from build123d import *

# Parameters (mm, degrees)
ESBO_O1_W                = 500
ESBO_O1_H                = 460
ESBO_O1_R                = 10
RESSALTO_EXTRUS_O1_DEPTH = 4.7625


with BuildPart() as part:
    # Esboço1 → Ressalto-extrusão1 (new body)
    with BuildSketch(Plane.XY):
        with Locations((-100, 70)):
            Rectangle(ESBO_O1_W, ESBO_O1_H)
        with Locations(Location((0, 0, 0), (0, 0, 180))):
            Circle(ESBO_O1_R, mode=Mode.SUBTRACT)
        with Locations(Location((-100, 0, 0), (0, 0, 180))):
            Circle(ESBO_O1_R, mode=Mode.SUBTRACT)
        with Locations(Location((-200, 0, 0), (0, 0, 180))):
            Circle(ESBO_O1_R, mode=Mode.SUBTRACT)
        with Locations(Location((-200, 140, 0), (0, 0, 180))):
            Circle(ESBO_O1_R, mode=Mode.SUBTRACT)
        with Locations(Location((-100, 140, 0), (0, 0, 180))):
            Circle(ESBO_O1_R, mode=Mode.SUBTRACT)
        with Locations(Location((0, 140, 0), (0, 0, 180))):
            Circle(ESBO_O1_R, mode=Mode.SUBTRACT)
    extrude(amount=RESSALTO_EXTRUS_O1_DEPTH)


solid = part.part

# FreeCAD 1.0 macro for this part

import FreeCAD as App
import Part
import Sketcher

V = App.Vector
Q = App.Units.Quantity

doc = App.newDocument("Part")
body = doc.addObject("PartDesign::Body", "Body")

# Sketch on XY plane
sketch1 = doc.addObject("Sketcher::SketchObject", "Sketch")
body.addObject(sketch1)
sketch1.AttachmentSupport = (doc.XY_Plane, [""])
sketch1.MapMode = "FlatFace"
sketch1.addGeometry([
    Part.LineSegment(V(-350, 300, 0), V(-350, -160, 0)),  # 0
    Part.LineSegment(V(-350, -160, 0), V(150, -160, 0)),  # 1
    Part.LineSegment(V(150, -160, 0), V(150, 300, 0)),  # 2
    Part.LineSegment(V(150, 300, 0), V(-350, 300, 0)),  # 3
    Part.Circle(V(-200, 0, 0), V(0, 0, 1), 10),  # 4
    Part.Circle(V(-100, 0, 0), V(0, 0, 1), 10),  # 5
    Part.Circle(V(0, 0, 0), V(0, 0, 1), 10),  # 6
    Part.Circle(V(-200, 140, 0), V(0, 0, 1), 10),  # 7
    Part.Circle(V(-100, 140, 0), V(0, 0, 1), 10),  # 8
    Part.Circle(V(0, 140, 0), V(0, 0, 1), 10),  # 9
], False)
sketch1.addConstraint([
    Sketcher.Constraint("Coincident", 0, 2, 1, 1),
    Sketcher.Constraint("Coincident", 1, 2, 2, 1),
    Sketcher.Constraint("Coincident", 2, 2, 3, 1),
    Sketcher.Constraint("Coincident", 3, 2, 0, 1),
    Sketcher.Constraint("Vertical", 0),
    Sketcher.Constraint("Horizontal", 1),
    Sketcher.Constraint("Vertical", 2),
    Sketcher.Constraint("Horizontal", 3),
    Sketcher.Constraint("Coincident", 6, 3, -1, 1),
    Sketcher.Constraint("Equal", 4, 5),
    Sketcher.Constraint("Equal", 5, 6),
    Sketcher.Constraint("Equal", 6, 7),
    Sketcher.Constraint("Equal", 7, 8),
    Sketcher.Constraint("Equal", 8, 9),
    Sketcher.Constraint("PointOnObject", 4, 3, -1),
    Sketcher.Constraint("PointOnObject", 5, 3, -1),
    Sketcher.Constraint("PointOnObject", 9, 3, -2),
    Sketcher.Constraint("Horizontal", 7, 3, 8, 3),
    Sketcher.Constraint("Horizontal", 8, 3, 9, 3),
    Sketcher.Constraint("Vertical", 4, 3, 7, 3),
    Sketcher.Constraint("Vertical", 5, 3, 8, 3),
    Sketcher.Constraint("Diameter", 4, Q("20 mm")),
    Sketcher.Constraint("DistanceX", 1, 1, 1, 2, Q("500 mm")),
    Sketcher.Constraint("DistanceY", 0, 2, 0, 1, Q("460 mm")),
    Sketcher.Constraint("DistanceX", 4, 3, -1, 1, Q("200 mm")),
    Sketcher.Constraint("DistanceX", 5, 3, -1, 1, Q("100 mm")),
    Sketcher.Constraint("DistanceY", -1, 1, 7, 3, Q("140 mm")),
    Sketcher.Constraint("DistanceX", 0, 2, -1, 1, Q("350 mm")),
    Sketcher.Constraint("DistanceY", 0, 2, -1, 1, Q("160 mm")),
])
pad1 = doc.addObject("PartDesign::Pad", "Pad")
body.addObject(pad1)
pad1.Profile = sketch1
pad1.Length = 4.7625

doc.recompute()
